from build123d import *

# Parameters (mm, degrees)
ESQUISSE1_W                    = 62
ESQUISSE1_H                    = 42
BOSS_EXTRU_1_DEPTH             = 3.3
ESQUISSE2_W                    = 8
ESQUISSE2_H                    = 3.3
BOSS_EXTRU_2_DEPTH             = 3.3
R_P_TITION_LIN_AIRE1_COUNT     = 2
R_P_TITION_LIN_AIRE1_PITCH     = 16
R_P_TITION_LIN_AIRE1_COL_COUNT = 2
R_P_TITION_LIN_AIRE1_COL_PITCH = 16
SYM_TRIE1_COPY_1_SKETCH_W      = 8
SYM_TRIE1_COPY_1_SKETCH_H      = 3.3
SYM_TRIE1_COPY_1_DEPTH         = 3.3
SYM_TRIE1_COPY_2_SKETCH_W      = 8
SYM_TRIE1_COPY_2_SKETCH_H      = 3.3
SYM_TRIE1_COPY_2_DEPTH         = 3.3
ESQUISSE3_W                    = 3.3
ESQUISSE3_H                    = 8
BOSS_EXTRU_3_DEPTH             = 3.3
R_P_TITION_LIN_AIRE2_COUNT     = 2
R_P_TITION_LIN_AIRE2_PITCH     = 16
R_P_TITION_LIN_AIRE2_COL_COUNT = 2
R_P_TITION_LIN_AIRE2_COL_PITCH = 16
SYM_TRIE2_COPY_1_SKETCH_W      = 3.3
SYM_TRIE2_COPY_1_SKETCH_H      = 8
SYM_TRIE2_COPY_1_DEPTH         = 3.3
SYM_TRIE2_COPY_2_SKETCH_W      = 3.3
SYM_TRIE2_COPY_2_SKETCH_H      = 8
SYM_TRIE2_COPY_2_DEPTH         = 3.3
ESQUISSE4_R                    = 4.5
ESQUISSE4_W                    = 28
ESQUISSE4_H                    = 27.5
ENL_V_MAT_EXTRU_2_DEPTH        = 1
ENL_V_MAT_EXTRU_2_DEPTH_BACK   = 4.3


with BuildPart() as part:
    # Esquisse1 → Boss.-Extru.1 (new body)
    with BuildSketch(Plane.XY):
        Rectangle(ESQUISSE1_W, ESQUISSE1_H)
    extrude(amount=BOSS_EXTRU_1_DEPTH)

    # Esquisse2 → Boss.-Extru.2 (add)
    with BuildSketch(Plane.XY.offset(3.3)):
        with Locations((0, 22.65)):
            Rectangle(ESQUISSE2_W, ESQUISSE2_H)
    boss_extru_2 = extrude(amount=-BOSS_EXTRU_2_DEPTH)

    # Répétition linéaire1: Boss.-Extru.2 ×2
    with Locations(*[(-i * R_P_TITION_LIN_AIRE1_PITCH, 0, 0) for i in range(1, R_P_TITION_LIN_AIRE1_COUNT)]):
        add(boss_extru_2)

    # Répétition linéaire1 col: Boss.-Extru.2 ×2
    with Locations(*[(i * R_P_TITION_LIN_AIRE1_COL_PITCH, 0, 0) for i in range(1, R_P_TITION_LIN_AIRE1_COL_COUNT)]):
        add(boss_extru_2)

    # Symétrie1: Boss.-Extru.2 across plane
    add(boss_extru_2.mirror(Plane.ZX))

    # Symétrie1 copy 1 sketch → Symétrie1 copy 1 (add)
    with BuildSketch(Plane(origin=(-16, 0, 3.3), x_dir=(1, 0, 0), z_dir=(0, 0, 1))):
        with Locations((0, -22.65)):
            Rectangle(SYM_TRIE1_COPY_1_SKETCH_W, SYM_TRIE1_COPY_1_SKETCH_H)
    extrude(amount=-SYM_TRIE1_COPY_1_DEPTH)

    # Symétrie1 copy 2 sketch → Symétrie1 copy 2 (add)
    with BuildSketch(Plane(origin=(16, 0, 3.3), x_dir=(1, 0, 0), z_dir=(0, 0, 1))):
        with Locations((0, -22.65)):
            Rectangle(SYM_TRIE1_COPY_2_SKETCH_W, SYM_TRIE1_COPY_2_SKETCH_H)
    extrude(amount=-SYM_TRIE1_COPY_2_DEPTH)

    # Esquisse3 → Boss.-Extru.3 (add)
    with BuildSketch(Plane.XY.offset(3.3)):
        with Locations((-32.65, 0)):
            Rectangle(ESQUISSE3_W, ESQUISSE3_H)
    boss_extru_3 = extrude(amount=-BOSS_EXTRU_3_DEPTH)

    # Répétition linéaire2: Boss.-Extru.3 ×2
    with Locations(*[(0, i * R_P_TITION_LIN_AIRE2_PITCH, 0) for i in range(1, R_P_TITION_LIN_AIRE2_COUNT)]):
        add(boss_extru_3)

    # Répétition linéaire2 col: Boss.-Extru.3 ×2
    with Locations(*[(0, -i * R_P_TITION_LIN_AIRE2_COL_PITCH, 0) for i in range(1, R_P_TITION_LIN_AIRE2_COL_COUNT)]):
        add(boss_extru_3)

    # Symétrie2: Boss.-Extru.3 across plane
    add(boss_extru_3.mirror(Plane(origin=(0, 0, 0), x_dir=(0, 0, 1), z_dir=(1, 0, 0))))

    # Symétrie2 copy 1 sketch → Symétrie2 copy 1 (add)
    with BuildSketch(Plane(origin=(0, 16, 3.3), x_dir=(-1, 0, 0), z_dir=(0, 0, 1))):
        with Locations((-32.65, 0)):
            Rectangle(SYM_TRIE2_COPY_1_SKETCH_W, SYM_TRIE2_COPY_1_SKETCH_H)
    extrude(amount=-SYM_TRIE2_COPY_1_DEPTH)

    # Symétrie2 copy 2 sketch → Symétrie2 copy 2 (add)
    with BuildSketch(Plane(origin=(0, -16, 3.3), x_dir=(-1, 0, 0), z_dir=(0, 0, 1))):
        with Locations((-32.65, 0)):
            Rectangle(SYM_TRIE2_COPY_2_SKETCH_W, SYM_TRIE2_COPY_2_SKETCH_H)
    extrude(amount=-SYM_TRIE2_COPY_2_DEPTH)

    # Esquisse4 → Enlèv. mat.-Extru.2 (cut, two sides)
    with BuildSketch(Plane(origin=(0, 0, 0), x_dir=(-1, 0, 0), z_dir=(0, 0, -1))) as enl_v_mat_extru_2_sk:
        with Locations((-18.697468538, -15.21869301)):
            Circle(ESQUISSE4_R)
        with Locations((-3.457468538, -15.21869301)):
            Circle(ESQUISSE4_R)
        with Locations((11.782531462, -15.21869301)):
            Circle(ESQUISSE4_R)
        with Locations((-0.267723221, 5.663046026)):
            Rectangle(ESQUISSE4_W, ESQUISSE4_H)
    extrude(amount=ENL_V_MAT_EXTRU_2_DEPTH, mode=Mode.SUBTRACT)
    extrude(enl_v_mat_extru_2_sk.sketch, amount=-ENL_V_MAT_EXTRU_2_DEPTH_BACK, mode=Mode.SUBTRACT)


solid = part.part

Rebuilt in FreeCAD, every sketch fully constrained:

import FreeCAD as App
import Part
import Sketcher
Q = App.Units.Quantity

doc = App.newDocument("Part")
params = doc.addObject("Spreadsheet::Sheet", "Params")
for row, (alias, value) in enumerate([
    ("sketch1_width", "62 mm"),
    ("sketch1_height", "42 mm"),
    ("pad1_length", "3.3 mm"),
    ("sketch2_width", "8 mm"),
    ("sketch2_height", "3.3 mm"),
    ("pad2_length", "3.3 mm"),
    ("linearpattern_pitch", "16 mm"),
    ("linearpattern2_pitch", "16 mm"),
    ("sketch3_width", "8 mm"),
    ("sketch3_height", "3.3 mm"),
    ("pad3_length", "3.3 mm"),
    ("sketch4_width", "8 mm"),
    ("sketch4_height", "3.3 mm"),
    ("pad4_length", "3.3 mm"),
    ("sketch5_height", "8 mm"),
    ("sketch5_width", "3.3 mm"),
    ("pad5_length", "3.3 mm"),
    ("linearpattern3_pitch", "16 mm"),
    ("linearpattern4_pitch", "16 mm"),
    ("sketch6_height", "8 mm"),
    ("sketch6_width", "3.3 mm"),
    ("pad6_length", "3.3 mm"),
    ("sketch7_height", "8 mm"),
    ("sketch7_width", "3.3 mm"),
    ("pad7_length", "3.3 mm"),
    ("sketch8_diameter", "9 mm"),
    ("sketch8_width", "28 mm"),
    ("sketch8_height", "27.5 mm"),
], start=1):
    params.set(f"A{row}", alias)
    params.set(f"B{row}", "=" + value)
    params.setAlias(f"B{row}", alias)

body = doc.addObject("PartDesign::Body", "Body")

# Sketch on XY plane
sketch1 = doc.addObject("Sketcher::SketchObject", "Sketch")
body.addObject(sketch1)
sketch1.AttachmentSupport = (doc.XY_Plane, [""])
sketch1.MapMode = "FlatFace"
sketch1.addGeometry(Part.LineSegment(App.Vector(-31, 21, 0), App.Vector(-31, -21, 0)), False)
sketch1.addGeometry(Part.LineSegment(App.Vector(-31, -21, 0), App.Vector(31, -21, 0)), False)
sketch1.addGeometry(Part.LineSegment(App.Vector(31, -21, 0), App.Vector(31, 21, 0)), False)
sketch1.addGeometry(Part.LineSegment(App.Vector(31, 21, 0), App.Vector(-31, 21, 0)), False)
sketch1.addConstraint(Sketcher.Constraint("Coincident", 0, 2, 1, 1))
sketch1.addConstraint(Sketcher.Constraint("Coincident", 1, 2, 2, 1))
sketch1.addConstraint(Sketcher.Constraint("Coincident", 2, 2, 3, 1))
sketch1.addConstraint(Sketcher.Constraint("Coincident", 3, 2, 0, 1))
sketch1.addConstraint(Sketcher.Constraint("Vertical", 0))
sketch1.addConstraint(Sketcher.Constraint("Horizontal", 1))
sketch1.addConstraint(Sketcher.Constraint("Vertical", 2))
sketch1.addConstraint(Sketcher.Constraint("Horizontal", 3))
sketch1.addConstraint(Sketcher.Constraint("Symmetric", 0, 2, 2, 2, -1, 1))
sketch1.addConstraint(Sketcher.Constraint("DistanceX", 1, 1, 1, 2, Q("62 mm")))
sketch1.addConstraint(Sketcher.Constraint("DistanceY", 0, 2, 0, 1, Q("42 mm")))
sketch1.setExpression("Constraints[9]", "Params.sketch1_width")
sketch1.setExpression("Constraints[10]", "Params.sketch1_height")
pad1 = doc.addObject("PartDesign::Pad", "Pad")
body.addObject(pad1)
pad1.Profile = sketch1
pad1.setExpression("Length", "Params.pad1_length")

# Sketch on XY plane
sketch2 = doc.addObject("Sketcher::SketchObject", "Sketch001")
body.addObject(sketch2)
sketch2.AttachmentSupport = (doc.XY_Plane, [""])
sketch2.MapMode = "FlatFace"
sketch2.AttachmentOffset = App.Placement(App.Vector(0, 0, 3.3), App.Rotation())
sketch2.addGeometry(Part.LineSegment(App.Vector(-4, 24.3, 0), App.Vector(-4, 21, 0)), False)
sketch2.addGeometry(Part.LineSegment(App.Vector(-4, 21, 0), App.Vector(4, 21, 0)), False)
sketch2.addGeometry(Part.LineSegment(App.Vector(4, 21, 0), App.Vector(4, 24.3, 0)), False)
sketch2.addGeometry(Part.LineSegment(App.Vector(4, 24.3, 0), App.Vector(-4, 24.3, 0)), False)
sketch2.addConstraint(Sketcher.Constraint("Coincident", 0, 2, 1, 1))
sketch2.addConstraint(Sketcher.Constraint("Coincident", 1, 2, 2, 1))
sketch2.addConstraint(Sketcher.Constraint("Coincident", 2, 2, 3, 1))
sketch2.addConstraint(Sketcher.Constraint("Coincident", 3, 2, 0, 1))
sketch2.addConstraint(Sketcher.Constraint("Vertical", 0))
sketch2.addConstraint(Sketcher.Constraint("Horizontal", 1))
sketch2.addConstraint(Sketcher.Constraint("Vertical", 2))
sketch2.addConstraint(Sketcher.Constraint("Horizontal", 3))
sketch2.addConstraint(Sketcher.Constraint("DistanceX", 1, 1, 1, 2, Q("8 mm")))
sketch2.addConstraint(Sketcher.Constraint("DistanceY", 0, 2, 0, 1, Q("3.3 mm")))
sketch2.addConstraint(Sketcher.Constraint("DistanceX", 0, 2, -1, 1, Q("4 mm")))
sketch2.addConstraint(Sketcher.Constraint("DistanceY", -1, 1, 0, 2, Q("21 mm")))
sketch2.setExpression("Constraints[8]", "Params.sketch2_width")
sketch2.setExpression("Constraints[9]", "Params.sketch2_height")
pad2 = doc.addObject("PartDesign::Pad", "Pad001")
body.addObject(pad2)
pad2.Profile = sketch2
pad2.setExpression("Length", "Params.pad2_length")
pad2.Reversed = True
doc.recompute()

linearpattern = doc.addObject("PartDesign::LinearPattern", "LinearPattern")
body.addObject(linearpattern)
linearpattern.Originals = [pad2]
linearpattern.Direction = (doc.X_Axis, [""])
linearpattern.Mode = "offset"
linearpattern.setExpression("Offset", "Params.linearpattern_pitch")
linearpattern.Occurrences = 2
linearpattern.Reversed = True
body.Tip = linearpattern
doc.recompute()

linearpattern2 = doc.addObject("PartDesign::LinearPattern", "LinearPattern001")
body.addObject(linearpattern2)
linearpattern2.Originals = [pad2]
linearpattern2.Direction = (doc.X_Axis, [""])
linearpattern2.Mode = "offset"
linearpattern2.setExpression("Offset", "Params.linearpattern2_pitch")
linearpattern2.Occurrences = 2
body.Tip = linearpattern2
doc.recompute()

mirrored = doc.addObject("PartDesign::Mirrored", "Mirrored")
body.addObject(mirrored)
mirrored.Originals = [pad2]
mirrored.MirrorPlane = (doc.XZ_Plane, [""])
body.Tip = mirrored

# Sketch on XY plane
sketch3 = doc.addObject("Sketcher::SketchObject", "Sketch002")
body.addObject(sketch3)
sketch3.AttachmentSupport = (doc.XY_Plane, [""])
sketch3.MapMode = "FlatFace"
sketch3.AttachmentOffset = App.Placement(App.Vector(0, 0, 3.3), App.Rotation())
sketch3.addGeometry(Part.LineSegment(App.Vector(-20, -21, 0), App.Vector(-20, -24.3, 0)), False)
sketch3.addGeometry(Part.LineSegment(App.Vector(-20, -24.3, 0), App.Vector(-12, -24.3, 0)), False)
sketch3.addGeometry(Part.LineSegment(App.Vector(-12, -24.3, 0), App.Vector(-12, -21, 0)), False)
sketch3.addGeometry(Part.LineSegment(App.Vector(-12, -21, 0), App.Vector(-20, -21, 0)), False)
sketch3.addConstraint(Sketcher.Constraint("Coincident", 0, 2, 1, 1))
sketch3.addConstraint(Sketcher.Constraint("Coincident", 1, 2, 2, 1))
sketch3.addConstraint(Sketcher.Constraint("Coincident", 2, 2, 3, 1))
sketch3.addConstraint(Sketcher.Constraint("Coincident", 3, 2, 0, 1))
sketch3.addConstraint(Sketcher.Constraint("Vertical", 0))
sketch3.addConstraint(Sketcher.Constraint("Horizontal", 1))
sketch3.addConstraint(Sketcher.Constraint("Vertical", 2))
sketch3.addConstraint(Sketcher.Constraint("Horizontal", 3))
sketch3.addConstraint(Sketcher.Constraint("DistanceX", 1, 1, 1, 2, Q("8 mm")))
sketch3.addConstraint(Sketcher.Constraint("DistanceY", 0, 2, 0, 1, Q("3.3 mm")))
sketch3.addConstraint(Sketcher.Constraint("DistanceX", 0, 2, -1, 1, Q("20 mm")))
sketch3.addConstraint(Sketcher.Constraint("DistanceY", 2, 2, -1, 1, Q("21 mm")))
sketch3.setExpression("Constraints[8]", "Params.sketch3_width")
sketch3.setExpression("Constraints[9]", "Params.sketch3_height")
pad3 = doc.addObject("PartDesign::Pad", "Pad002")
body.addObject(pad3)
pad3.Profile = sketch3
pad3.setExpression("Length", "Params.pad3_length")
pad3.Reversed = True

# Sketch on XY plane
sketch4 = doc.addObject("Sketcher::SketchObject", "Sketch003")
body.addObject(sketch4)
sketch4.AttachmentSupport = (doc.XY_Plane, [""])
sketch4.MapMode = "FlatFace"
sketch4.AttachmentOffset = App.Placement(App.Vector(0, 0, 3.3), App.Rotation())
sketch4.addGeometry(Part.LineSegment(App.Vector(12, -21, 0), App.Vector(12, -24.3, 0)), False)
sketch4.addGeometry(Part.LineSegment(App.Vector(12, -24.3, 0), App.Vector(20, -24.3, 0)), False)
sketch4.addGeometry(Part.LineSegment(App.Vector(20, -24.3, 0), App.Vector(20, -21, 0)), False)
sketch4.addGeometry(Part.LineSegment(App.Vector(20, -21, 0), App.Vector(12, -21, 0)), False)
sketch4.addConstraint(Sketcher.Constraint("Coincident", 0, 2, 1, 1))
sketch4.addConstraint(Sketcher.Constraint("Coincident", 1, 2, 2, 1))
sketch4.addConstraint(Sketcher.Constraint("Coincident", 2, 2, 3, 1))
sketch4.addConstraint(Sketcher.Constraint("Coincident", 3, 2, 0, 1))
sketch4.addConstraint(Sketcher.Constraint("Vertical", 0))
sketch4.addConstraint(Sketcher.Constraint("Horizontal", 1))
sketch4.addConstraint(Sketcher.Constraint("Vertical", 2))
sketch4.addConstraint(Sketcher.Constraint("Horizontal", 3))
sketch4.addConstraint(Sketcher.Constraint("DistanceX", 1, 1, 1, 2, Q("8 mm")))
sketch4.addConstraint(Sketcher.Constraint("DistanceY", 0, 2, 0, 1, Q("3.3 mm")))
sketch4.addConstraint(Sketcher.Constraint("DistanceX", -1, 1, 0, 2, Q("12 mm")))
sketch4.addConstraint(Sketcher.Constraint("DistanceY", 2, 2, -1, 1, Q("21 mm")))
sketch4.setExpression("Constraints[8]", "Params.sketch4_width")
sketch4.setExpression("Constraints[9]", "Params.sketch4_height")
pad4 = doc.addObject("PartDesign::Pad", "Pad003")
body.addObject(pad4)
pad4.Profile = sketch4
pad4.setExpression("Length", "Params.pad4_length")
pad4.Reversed = True

# Sketch on XY plane
sketch5 = doc.addObject("Sketcher::SketchObject", "Sketch004")
body.addObject(sketch5)
sketch5.AttachmentSupport = (doc.XY_Plane, [""])
sketch5.MapMode = "FlatFace"
sketch5.AttachmentOffset = App.Placement(App.Vector(0, 0, 3.3), App.Rotation())
sketch5.addGeometry(Part.LineSegment(App.Vector(-34.3, 4, 0), App.Vector(-34.3, -4, 0)), False)
sketch5.addGeometry(Part.LineSegment(App.Vector(-34.3, -4, 0), App.Vector(-31, -4, 0)), False)
sketch5.addGeometry(Part.LineSegment(App.Vector(-31, -4, 0), App.Vector(-31, 4, 0)), False)
sketch5.addGeometry(Part.LineSegment(App.Vector(-31, 4, 0), App.Vector(-34.3, 4, 0)), False)
sketch5.addConstraint(Sketcher.Constraint("Coincident", 0, 2, 1, 1))
sketch5.addConstraint(Sketcher.Constraint("Coincident", 1, 2, 2, 1))
sketch5.addConstraint(Sketcher.Constraint("Coincident", 2, 2, 3, 1))
sketch5.addConstraint(Sketcher.Constraint("Coincident", 3, 2, 0, 1))
sketch5.addConstraint(Sketcher.Constraint("Vertical", 0))
sketch5.addConstraint(Sketcher.Constraint("Horizontal", 1))
sketch5.addConstraint(Sketcher.Constraint("Vertical", 2))
sketch5.addConstraint(Sketcher.Constraint("Horizontal", 3))
sketch5.addConstraint(Sketcher.Constraint("DistanceY", 0, 2, 0, 1, Q("8 mm")))
sketch5.addConstraint(Sketcher.Constraint("DistanceX", 1, 1, 1, 2, Q("3.3 mm")))
sketch5.addConstraint(Sketcher.Constraint("DistanceY", 0, 2, -1, 1, Q("4 mm")))
sketch5.addConstraint(Sketcher.Constraint("DistanceX", 1, 2, -1, 1, Q("31 mm")))
sketch5.setExpression("Constraints[8]", "Params.sketch5_height")
sketch5.setExpression("Constraints[9]", "Params.sketch5_width")
pad5 = doc.addObject("PartDesign::Pad", "Pad004")
body.addObject(pad5)
pad5.Profile = sketch5
pad5.setExpression("Length", "Params.pad5_length")
pad5.Reversed = True
doc.recompute()

linearpattern3 = doc.addObject("PartDesign::LinearPattern", "LinearPattern002")
body.addObject(linearpattern3)
linearpattern3.Originals = [pad5]
linearpattern3.Direction = (doc.Y_Axis, [""])
linearpattern3.Mode = "offset"
linearpattern3.setExpression("Offset", "Params.linearpattern3_pitch")
linearpattern3.Occurrences = 2
body.Tip = linearpattern3
doc.recompute()

linearpattern4 = doc.addObject("PartDesign::LinearPattern", "LinearPattern003")
body.addObject(linearpattern4)
linearpattern4.Originals = [pad5]
linearpattern4.Direction = (doc.Y_Axis, [""])
linearpattern4.Mode = "offset"
linearpattern4.setExpression("Offset", "Params.linearpattern4_pitch")
linearpattern4.Occurrences = 2
linearpattern4.Reversed = True
body.Tip = linearpattern4
doc.recompute()

mirrored2 = doc.addObject("PartDesign::Mirrored", "Mirrored001")
body.addObject(mirrored2)
mirrored2.Originals = [pad5]
mirrored2.MirrorPlane = (doc.YZ_Plane, [""])
body.Tip = mirrored2

# Sketch on XY plane
sketch6 = doc.addObject("Sketcher::SketchObject", "Sketch005")
body.addObject(sketch6)
sketch6.AttachmentSupport = (doc.XY_Plane, [""])
sketch6.MapMode = "FlatFace"
sketch6.AttachmentOffset = App.Placement(App.Vector(0, 0, 3.3), App.Rotation())
sketch6.addGeometry(Part.LineSegment(App.Vector(34.3, 12, 0), App.Vector(34.3, 20, 0)), False)
sketch6.addGeometry(Part.LineSegment(App.Vector(34.3, 20, 0), App.Vector(31, 20, 0)), False)
sketch6.addGeometry(Part.LineSegment(App.Vector(31, 20, 0), App.Vector(31, 12, 0)), False)
sketch6.addGeometry(Part.LineSegment(App.Vector(31, 12, 0), App.Vector(34.3, 12, 0)), False)
sketch6.addConstraint(Sketcher.Constraint("Coincident", 0, 2, 1, 1))
sketch6.addConstraint(Sketcher.Constraint("Coincident", 1, 2, 2, 1))
sketch6.addConstraint(Sketcher.Constraint("Coincident", 2, 2, 3, 1))
sketch6.addConstraint(Sketcher.Constraint("Coincident", 3, 2, 0, 1))
sketch6.addConstraint(Sketcher.Constraint("Vertical", 0))
sketch6.addConstraint(Sketcher.Constraint("Horizontal", 1))
sketch6.addConstraint(Sketcher.Constraint("Vertical", 2))
sketch6.addConstraint(Sketcher.Constraint("Horizontal", 3))
sketch6.addConstraint(Sketcher.Constraint("DistanceY", 0, 1, 0, 2, Q("8 mm")))
sketch6.addConstraint(Sketcher.Constraint("DistanceX", 1, 2, 1, 1, Q("3.3 mm")))
sketch6.addConstraint(Sketcher.Constraint("DistanceY", -1, 1, 0, 2, Q("20 mm")))
sketch6.addConstraint(Sketcher.Constraint("DistanceX", -1, 1, 1, 2, Q("31 mm")))
sketch6.setExpression("Constraints[8]", "Params.sketch6_height")
sketch6.setExpression("Constraints[9]", "Params.sketch6_width")
pad6 = doc.addObject("PartDesign::Pad", "Pad005")
body.addObject(pad6)
pad6.Profile = sketch6
pad6.setExpression("Length", "Params.pad6_length")
pad6.Reversed = True

# Sketch on XY plane
sketch7 = doc.addObject("Sketcher::SketchObject", "Sketch006")
body.addObject(sketch7)
sketch7.AttachmentSupport = (doc.XY_Plane, [""])
sketch7.MapMode = "FlatFace"
sketch7.AttachmentOffset = App.Placement(App.Vector(0, 0, 3.3), App.Rotation())
sketch7.addGeometry(Part.LineSegment(App.Vector(34.3, -20, 0), App.Vector(34.3, -12, 0)), False)
sketch7.addGeometry(Part.LineSegment(App.Vector(34.3, -12, 0), App.Vector(31, -12, 0)), False)
sketch7.addGeometry(Part.LineSegment(App.Vector(31, -12, 0), App.Vector(31, -20, 0)), False)
sketch7.addGeometry(Part.LineSegment(App.Vector(31, -20, 0), App.Vector(34.3, -20, 0)), False)
sketch7.addConstraint(Sketcher.Constraint("Coincident", 0, 2, 1, 1))
sketch7.addConstraint(Sketcher.Constraint("Coincident", 1, 2, 2, 1))
sketch7.addConstraint(Sketcher.Constraint("Coincident", 2, 2, 3, 1))
sketch7.addConstraint(Sketcher.Constraint("Coincident", 3, 2, 0, 1))
sketch7.addConstraint(Sketcher.Constraint("Vertical", 0))
sketch7.addConstraint(Sketcher.Constraint("Horizontal", 1))
sketch7.addConstraint(Sketcher.Constraint("Vertical", 2))
sketch7.addConstraint(Sketcher.Constraint("Horizontal", 3))
sketch7.addConstraint(Sketcher.Constraint("DistanceY", 0, 1, 0, 2, Q("8 mm")))
sketch7.addConstraint(Sketcher.Constraint("DistanceX", 1, 2, 1, 1, Q("3.3 mm")))
sketch7.addConstraint(Sketcher.Constraint("DistanceY", 0, 2, -1, 1, Q("12 mm")))
sketch7.addConstraint(Sketcher.Constraint("DistanceX", -1, 1, 1, 2, Q("31 mm")))
sketch7.setExpression("Constraints[8]", "Params.sketch7_height")
sketch7.setExpression("Constraints[9]", "Params.sketch7_width")
pad7 = doc.addObject("PartDesign::Pad", "Pad006")
body.addObject(pad7)
pad7.Profile = sketch7
pad7.setExpression("Length", "Params.pad7_length")
pad7.Reversed = True

# Sketch on XY plane
sketch8 = doc.addObject("Sketcher::SketchObject", "Sketch007")
body.addObject(sketch8)
sketch8.AttachmentSupport = (doc.XY_Plane, [""])
sketch8.MapMode = "FlatFace"
sketch8.addGeometry(Part.Circle(App.Vector(18.7, -15.2, 0), App.Vector(0, 0, 1), 4.5), False)
sketch8.addGeometry(Part.Circle(App.Vector(3.5, -15.2, 0), App.Vector(0, 0, 1), 4.5), False)
sketch8.addGeometry(Part.Circle(App.Vector(-11.8, -15.2, 0), App.Vector(0, 0, 1), 4.5), False)
sketch8.addGeometry(Part.LineSegment(App.Vector(14.3, 19.4, 0), App.Vector(14.3, -8.1, 0)), False)
sketch8.addGeometry(Part.LineSegment(App.Vector(14.3, -8.1, 0), App.Vector(-13.7, -8.1, 0)), False)
sketch8.addGeometry(Part.LineSegment(App.Vector(-13.7, -8.1, 0), App.Vector(-13.7, 19.4, 0)), False)
sketch8.addGeometry(Part.LineSegment(App.Vector(-13.7, 19.4, 0), App.Vector(14.3, 19.4, 0)), False)
sketch8.addConstraint(Sketcher.Constraint("Coincident", 3, 2, 4, 1))
sketch8.addConstraint(Sketcher.Constraint("Coincident", 4, 2, 5, 1))
sketch8.addConstraint(Sketcher.Constraint("Coincident", 5, 2, 6, 1))
sketch8.addConstraint(Sketcher.Constraint("Coincident", 6, 2, 3, 1))
sketch8.addConstraint(Sketcher.Constraint("Vertical", 3))
sketch8.addConstraint(Sketcher.Constraint("Horizontal", 4))
sketch8.addConstraint(Sketcher.Constraint("Vertical", 5))
sketch8.addConstraint(Sketcher.Constraint("Horizontal", 6))
sketch8.addConstraint(Sketcher.Constraint("Equal", 0, 1))
sketch8.addConstraint(Sketcher.Constraint("Equal", 1, 2))
sketch8.addConstraint(Sketcher.Constraint("Horizontal", 0, 3, 1, 3))
sketch8.addConstraint(Sketcher.Constraint("Horizontal", 1, 3, 2, 3))
sketch8.addConstraint(Sketcher.Constraint("Diameter", 0, Q("9 mm")))
sketch8.addConstraint(Sketcher.Constraint("DistanceX", 4, 2, 4, 1, Q("28 mm")))
sketch8.addConstraint(Sketcher.Constraint("DistanceY", 3, 2, 3, 1, Q("27.5 mm")))
sketch8.addConstraint(Sketcher.Constraint("DistanceX", 1, 3, 0, 3, Q("15.24 mm")))
sketch8.addConstraint(Sketcher.Constraint("DistanceX", 2, 3, 1, 3, Q("15.24 mm")))
sketch8.addConstraint(Sketcher.Constraint("DistanceX", -1, 1, 0, 3, Q("18.697469 mm")))
sketch8.addConstraint(Sketcher.Constraint("DistanceY", 0, 3, 3, 2, Q("7.131739 mm")))
sketch8.addConstraint(Sketcher.Constraint("DistanceY", 0, 3, -1, 1, Q("15.218693 mm")))
sketch8.addConstraint(Sketcher.Constraint("DistanceX", -1, 1, 3, 2, Q("14.267723 mm")))
sketch8.setExpression("Constraints[12]", "Params.sketch8_diameter")
sketch8.setExpression("Constraints[13]", "Params.sketch8_width")
sketch8.setExpression("Constraints[14]", "Params.sketch8_height")
pocket1 = doc.addObject("PartDesign::Pocket", "Pocket")
body.addObject(pocket1)
pocket1.Profile = sketch8
pocket1.Type = "ThroughAll"
pocket1.Midplane = True

doc.recompute()
